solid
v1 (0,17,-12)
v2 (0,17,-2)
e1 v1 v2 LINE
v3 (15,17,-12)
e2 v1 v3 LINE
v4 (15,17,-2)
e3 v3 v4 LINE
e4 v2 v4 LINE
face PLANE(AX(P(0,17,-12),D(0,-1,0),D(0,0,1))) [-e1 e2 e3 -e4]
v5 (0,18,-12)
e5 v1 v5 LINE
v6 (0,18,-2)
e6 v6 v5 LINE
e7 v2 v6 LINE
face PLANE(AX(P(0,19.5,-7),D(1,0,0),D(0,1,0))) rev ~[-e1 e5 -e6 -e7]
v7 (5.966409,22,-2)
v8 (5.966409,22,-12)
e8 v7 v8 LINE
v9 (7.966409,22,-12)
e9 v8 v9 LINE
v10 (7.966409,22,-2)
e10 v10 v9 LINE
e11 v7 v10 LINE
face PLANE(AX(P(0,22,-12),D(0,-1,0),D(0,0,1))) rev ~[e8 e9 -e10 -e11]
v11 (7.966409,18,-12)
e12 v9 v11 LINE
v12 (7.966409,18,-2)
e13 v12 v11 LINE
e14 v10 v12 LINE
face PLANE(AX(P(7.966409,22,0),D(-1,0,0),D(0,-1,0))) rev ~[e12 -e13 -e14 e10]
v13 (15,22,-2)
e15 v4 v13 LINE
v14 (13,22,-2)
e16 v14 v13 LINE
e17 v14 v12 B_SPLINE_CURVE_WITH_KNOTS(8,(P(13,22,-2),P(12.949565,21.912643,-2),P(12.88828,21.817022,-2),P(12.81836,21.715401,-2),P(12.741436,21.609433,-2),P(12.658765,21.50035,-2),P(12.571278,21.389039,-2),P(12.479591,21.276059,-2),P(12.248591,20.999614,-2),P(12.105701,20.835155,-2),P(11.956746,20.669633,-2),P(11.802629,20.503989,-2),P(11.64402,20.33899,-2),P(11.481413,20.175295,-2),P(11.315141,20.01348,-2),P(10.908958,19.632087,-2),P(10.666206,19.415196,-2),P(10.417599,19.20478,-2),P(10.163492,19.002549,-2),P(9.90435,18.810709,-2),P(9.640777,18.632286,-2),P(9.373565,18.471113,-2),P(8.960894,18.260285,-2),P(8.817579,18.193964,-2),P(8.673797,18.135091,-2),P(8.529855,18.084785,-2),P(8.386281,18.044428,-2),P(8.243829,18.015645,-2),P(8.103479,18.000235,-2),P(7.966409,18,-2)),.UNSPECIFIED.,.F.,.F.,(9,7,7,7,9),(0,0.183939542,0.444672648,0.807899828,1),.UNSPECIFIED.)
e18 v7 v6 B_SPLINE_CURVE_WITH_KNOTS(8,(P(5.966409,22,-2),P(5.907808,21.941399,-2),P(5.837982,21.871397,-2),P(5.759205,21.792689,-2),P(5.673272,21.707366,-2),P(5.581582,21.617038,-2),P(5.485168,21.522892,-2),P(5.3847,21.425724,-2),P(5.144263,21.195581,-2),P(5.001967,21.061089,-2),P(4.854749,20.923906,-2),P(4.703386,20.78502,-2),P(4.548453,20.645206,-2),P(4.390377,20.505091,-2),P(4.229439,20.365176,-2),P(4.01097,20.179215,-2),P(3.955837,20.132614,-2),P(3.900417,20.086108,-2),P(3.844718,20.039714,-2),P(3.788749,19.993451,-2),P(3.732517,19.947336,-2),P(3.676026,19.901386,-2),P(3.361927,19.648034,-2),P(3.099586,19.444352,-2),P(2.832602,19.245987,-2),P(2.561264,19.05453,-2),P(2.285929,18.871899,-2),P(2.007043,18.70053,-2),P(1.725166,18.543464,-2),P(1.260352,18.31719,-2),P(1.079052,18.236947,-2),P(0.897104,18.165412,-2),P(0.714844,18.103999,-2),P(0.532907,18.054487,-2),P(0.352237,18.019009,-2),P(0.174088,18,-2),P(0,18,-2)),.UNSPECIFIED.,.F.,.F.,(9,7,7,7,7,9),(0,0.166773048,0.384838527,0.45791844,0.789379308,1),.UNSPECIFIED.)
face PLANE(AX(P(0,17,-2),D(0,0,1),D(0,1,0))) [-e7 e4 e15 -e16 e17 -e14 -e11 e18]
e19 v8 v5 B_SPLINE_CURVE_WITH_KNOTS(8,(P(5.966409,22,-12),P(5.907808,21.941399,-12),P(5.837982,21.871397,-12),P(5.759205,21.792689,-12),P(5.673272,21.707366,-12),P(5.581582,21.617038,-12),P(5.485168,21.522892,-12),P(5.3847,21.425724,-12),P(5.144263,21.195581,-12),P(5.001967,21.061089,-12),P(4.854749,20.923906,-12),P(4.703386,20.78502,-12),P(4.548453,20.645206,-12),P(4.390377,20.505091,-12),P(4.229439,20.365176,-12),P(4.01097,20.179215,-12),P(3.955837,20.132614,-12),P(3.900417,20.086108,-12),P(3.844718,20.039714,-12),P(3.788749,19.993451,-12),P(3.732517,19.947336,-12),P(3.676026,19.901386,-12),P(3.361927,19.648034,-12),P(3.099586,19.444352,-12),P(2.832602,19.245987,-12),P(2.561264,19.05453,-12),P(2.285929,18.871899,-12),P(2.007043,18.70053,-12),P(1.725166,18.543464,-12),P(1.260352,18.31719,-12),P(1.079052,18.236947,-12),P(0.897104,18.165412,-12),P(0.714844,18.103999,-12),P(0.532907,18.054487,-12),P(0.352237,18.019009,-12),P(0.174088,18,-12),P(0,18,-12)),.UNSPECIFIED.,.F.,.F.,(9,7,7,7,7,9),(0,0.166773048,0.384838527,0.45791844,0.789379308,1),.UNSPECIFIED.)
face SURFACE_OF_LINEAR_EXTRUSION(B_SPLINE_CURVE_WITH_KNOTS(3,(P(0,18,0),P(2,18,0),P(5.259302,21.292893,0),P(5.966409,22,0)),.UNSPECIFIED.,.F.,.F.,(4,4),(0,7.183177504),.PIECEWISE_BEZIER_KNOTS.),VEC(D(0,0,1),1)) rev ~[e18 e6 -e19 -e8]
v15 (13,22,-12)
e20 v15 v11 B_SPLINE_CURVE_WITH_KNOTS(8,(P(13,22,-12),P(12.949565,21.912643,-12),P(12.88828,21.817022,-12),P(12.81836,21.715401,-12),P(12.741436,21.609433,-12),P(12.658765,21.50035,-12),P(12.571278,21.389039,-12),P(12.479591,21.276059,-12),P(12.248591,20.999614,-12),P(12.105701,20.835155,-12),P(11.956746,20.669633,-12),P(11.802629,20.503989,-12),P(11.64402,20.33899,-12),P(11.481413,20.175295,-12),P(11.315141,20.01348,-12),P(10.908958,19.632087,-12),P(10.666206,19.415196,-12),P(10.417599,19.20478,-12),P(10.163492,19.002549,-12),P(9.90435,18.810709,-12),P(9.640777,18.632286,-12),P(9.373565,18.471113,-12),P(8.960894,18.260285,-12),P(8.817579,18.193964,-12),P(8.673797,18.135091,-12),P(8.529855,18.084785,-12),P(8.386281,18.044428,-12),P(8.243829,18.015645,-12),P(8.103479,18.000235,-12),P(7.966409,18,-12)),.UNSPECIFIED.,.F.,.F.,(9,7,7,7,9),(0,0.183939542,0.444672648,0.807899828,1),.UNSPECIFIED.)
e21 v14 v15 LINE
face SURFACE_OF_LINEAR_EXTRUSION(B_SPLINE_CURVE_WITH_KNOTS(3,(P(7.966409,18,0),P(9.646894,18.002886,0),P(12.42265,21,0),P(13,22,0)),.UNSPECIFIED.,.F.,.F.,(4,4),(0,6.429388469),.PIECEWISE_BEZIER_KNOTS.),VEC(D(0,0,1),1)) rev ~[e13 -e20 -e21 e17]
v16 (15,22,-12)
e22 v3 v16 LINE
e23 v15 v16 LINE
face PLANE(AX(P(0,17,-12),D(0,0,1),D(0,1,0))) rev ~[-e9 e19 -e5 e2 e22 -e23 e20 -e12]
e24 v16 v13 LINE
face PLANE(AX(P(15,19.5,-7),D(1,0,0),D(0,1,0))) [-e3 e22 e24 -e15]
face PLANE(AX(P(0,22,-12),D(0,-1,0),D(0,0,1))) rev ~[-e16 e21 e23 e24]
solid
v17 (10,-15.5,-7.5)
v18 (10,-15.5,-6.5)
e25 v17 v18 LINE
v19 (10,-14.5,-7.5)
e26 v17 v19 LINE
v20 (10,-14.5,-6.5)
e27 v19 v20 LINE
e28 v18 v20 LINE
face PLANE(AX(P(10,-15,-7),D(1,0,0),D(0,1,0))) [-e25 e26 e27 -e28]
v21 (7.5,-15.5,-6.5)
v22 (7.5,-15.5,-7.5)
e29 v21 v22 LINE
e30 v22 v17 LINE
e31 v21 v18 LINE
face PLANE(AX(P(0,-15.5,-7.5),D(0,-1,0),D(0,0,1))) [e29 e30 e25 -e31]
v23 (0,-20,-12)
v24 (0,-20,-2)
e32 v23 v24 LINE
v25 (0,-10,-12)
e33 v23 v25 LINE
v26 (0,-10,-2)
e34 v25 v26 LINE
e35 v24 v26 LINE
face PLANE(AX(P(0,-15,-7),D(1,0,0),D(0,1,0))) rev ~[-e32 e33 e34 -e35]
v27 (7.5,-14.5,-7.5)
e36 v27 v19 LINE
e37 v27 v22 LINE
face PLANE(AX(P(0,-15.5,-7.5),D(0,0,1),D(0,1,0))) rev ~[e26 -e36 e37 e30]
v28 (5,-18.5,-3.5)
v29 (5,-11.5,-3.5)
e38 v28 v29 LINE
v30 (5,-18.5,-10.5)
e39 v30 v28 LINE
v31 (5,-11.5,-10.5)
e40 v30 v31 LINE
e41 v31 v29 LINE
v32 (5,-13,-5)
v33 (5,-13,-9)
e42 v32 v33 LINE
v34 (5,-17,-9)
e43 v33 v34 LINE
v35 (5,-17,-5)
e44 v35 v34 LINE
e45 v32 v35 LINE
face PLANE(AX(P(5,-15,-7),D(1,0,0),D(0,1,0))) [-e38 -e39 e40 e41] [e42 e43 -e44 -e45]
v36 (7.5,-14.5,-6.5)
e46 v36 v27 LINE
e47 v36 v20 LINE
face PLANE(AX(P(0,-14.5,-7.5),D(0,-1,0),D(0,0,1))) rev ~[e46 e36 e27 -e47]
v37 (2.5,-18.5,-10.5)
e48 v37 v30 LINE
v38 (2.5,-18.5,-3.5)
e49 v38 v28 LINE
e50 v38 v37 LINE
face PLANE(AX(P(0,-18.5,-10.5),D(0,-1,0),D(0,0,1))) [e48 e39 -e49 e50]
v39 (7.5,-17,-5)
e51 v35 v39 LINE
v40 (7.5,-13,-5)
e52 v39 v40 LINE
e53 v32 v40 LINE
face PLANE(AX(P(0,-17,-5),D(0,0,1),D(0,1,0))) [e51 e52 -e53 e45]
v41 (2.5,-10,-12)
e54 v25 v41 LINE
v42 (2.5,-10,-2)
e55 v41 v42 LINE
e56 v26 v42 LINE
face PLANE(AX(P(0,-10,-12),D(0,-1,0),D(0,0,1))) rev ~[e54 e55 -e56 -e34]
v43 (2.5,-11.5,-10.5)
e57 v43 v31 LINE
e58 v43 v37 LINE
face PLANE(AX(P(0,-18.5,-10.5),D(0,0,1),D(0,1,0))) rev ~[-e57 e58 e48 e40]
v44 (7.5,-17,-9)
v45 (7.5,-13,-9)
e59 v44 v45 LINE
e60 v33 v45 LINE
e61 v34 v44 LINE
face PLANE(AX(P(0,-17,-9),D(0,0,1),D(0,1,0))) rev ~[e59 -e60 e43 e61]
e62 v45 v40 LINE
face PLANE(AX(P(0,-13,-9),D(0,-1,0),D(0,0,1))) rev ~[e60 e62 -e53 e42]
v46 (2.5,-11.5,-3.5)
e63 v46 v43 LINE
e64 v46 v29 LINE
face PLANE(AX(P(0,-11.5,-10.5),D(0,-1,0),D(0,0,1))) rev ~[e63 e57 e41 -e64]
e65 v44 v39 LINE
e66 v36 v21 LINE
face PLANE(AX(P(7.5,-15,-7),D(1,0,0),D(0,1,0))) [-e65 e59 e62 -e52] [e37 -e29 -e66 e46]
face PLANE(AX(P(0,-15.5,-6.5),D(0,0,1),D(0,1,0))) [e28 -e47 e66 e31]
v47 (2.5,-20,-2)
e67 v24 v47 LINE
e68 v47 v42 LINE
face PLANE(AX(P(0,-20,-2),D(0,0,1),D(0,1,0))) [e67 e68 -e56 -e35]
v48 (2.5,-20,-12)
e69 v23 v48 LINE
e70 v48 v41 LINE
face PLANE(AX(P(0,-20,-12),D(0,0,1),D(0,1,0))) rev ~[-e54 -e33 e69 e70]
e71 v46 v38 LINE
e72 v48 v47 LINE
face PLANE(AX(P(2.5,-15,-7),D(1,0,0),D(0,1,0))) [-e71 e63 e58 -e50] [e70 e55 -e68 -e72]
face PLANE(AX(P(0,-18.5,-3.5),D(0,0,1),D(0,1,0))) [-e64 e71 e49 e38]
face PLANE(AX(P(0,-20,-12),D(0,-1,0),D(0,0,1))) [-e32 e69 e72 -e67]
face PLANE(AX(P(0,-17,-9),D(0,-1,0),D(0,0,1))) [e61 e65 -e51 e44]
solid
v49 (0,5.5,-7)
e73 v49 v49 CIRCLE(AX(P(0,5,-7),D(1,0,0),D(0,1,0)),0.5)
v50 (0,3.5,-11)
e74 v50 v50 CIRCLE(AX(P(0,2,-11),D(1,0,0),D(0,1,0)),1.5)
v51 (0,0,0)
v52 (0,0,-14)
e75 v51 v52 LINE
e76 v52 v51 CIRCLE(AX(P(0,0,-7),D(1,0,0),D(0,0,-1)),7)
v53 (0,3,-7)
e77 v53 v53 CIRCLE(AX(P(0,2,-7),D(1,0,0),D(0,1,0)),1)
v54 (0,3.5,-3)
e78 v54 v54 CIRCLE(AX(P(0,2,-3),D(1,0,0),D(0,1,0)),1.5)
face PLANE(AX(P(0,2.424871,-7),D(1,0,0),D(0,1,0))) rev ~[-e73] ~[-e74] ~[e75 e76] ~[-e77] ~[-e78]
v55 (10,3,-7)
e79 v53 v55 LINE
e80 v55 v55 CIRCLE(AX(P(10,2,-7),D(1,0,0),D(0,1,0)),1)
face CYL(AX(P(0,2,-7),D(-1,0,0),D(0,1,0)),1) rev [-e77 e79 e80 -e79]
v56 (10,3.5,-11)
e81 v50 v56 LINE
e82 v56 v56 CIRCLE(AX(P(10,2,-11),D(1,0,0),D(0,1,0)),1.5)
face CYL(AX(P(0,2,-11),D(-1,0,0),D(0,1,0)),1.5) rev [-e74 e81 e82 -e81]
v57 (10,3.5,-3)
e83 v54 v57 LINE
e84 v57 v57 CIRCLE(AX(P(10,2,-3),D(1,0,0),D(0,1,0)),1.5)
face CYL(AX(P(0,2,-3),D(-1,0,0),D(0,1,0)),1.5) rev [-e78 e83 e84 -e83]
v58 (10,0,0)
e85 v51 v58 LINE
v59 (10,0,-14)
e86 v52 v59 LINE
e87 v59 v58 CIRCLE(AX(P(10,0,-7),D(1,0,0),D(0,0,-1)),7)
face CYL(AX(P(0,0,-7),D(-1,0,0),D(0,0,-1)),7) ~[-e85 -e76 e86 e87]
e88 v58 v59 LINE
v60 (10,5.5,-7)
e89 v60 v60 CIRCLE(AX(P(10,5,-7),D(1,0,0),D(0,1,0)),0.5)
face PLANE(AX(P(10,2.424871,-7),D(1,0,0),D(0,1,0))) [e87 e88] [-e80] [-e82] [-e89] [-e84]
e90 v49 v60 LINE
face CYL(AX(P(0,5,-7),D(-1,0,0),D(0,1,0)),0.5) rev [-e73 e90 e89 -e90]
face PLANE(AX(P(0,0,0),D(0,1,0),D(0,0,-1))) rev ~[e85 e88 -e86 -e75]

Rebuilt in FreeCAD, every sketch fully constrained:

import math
import FreeCAD as App
import Part
import Sketcher


def add_polygon(sketch, points):
    """Adds a closed chain of lines whose ends are joined by coincident constraints."""
    first, n = sketch.GeometryCount, len(points)
    for a, b in zip(points, points[1:] + points[:1]):
        sketch.addGeometry(Part.LineSegment(App.Vector(*a, 0), App.Vector(*b, 0)), False)
    for i in range(n):
        sketch.addConstraint(Sketcher.Constraint("Coincident", first + i, 2, first + (i + 1) % n, 1))

doc = App.newDocument("Part")
params = doc.addObject("Spreadsheet::Sheet", "Params")
for row, (alias, value) in enumerate([
    ("sketch1_width", "10 mm"),
    ("pad1_length", "2.5 mm"),
    ("sketch2_width", "7 mm"),
    ("pad2_length", "5 mm"),
    ("sketch3_width", "4 mm"),
    ("pad3_length", "7.5 mm"),
    ("sketch4_width", "1 mm"),
    ("pad4_length", "10 mm"),
    ("sketch5_diameter", "3 mm"),
    ("sketch5_diameter2", "2 mm"),
    ("sketch5_diameter3", "1 mm"),
    ("sketch5_radius", "7 mm"),
    ("pad5_length", "10 mm"),
    ("sketch6_width", "5 mm"),
    ("sketch6_height", "10 mm"),
    ("pad6_length", "15 mm"),
    ("pocket1_length", "25 mm"),
], start=1):
    params.set(f"A{row}", alias)
    params.set(f"B{row}", "=" + value)
    params.setAlias(f"B{row}", alias)

body = doc.addObject("PartDesign::Body", "Body")

# Sketch on YZ plane
sketch1 = body.newObject("Sketcher::SketchObject", "Sketch")
sketch1.AttachmentSupport = (doc.getObject("YZ_Plane"), [""])
sketch1.MapMode = "FlatFace"
add_polygon(sketch1, [(-20, -2), (-20, -12), (-10, -12), (-10, -2)])  # lines 0-3
sketch1.addConstraint(Sketcher.Constraint("Vertical", 0))
sketch1.addConstraint(Sketcher.Constraint("Horizontal", 1))
sketch1.addConstraint(Sketcher.Constraint("Vertical", 2))
sketch1.addConstraint(Sketcher.Constraint("Horizontal", 3))
sketch1.addConstraint(Sketcher.Constraint("Equal", 3, 0))
sketch1.addConstraint(Sketcher.Constraint("DistanceX", 1, 1, 1, 2, 10.0))
sketch1.addConstraint(Sketcher.Constraint("DistanceX", 0, 2, -1, 1, 20.0))
sketch1.addConstraint(Sketcher.Constraint("DistanceY", 0, 2, -1, 1, 12.0))
sketch1.setExpression("Constraints[9]", "Params.sketch1_width")
pad1 = body.newObject("PartDesign::Pad", "Pad")
pad1.Profile = sketch1
pad1.setExpression("Length", "Params.pad1_length")

# Sketch on YZ plane
sketch2 = body.newObject("Sketcher::SketchObject", "Sketch001")
sketch2.AttachmentSupport = (doc.getObject("YZ_Plane"), [""])
sketch2.MapMode = "FlatFace"
add_polygon(sketch2, [(-18, -4), (-18, -10), (-12, -10), (-12, -4)])  # lines 0-3
sketch2.addConstraint(Sketcher.Constraint("Vertical", 0))
sketch2.addConstraint(Sketcher.Constraint("Horizontal", 1))
sketch2.addConstraint(Sketcher.Constraint("Vertical", 2))
sketch2.addConstraint(Sketcher.Constraint("Horizontal", 3))
sketch2.addConstraint(Sketcher.Constraint("Equal", 3, 0))
sketch2.addConstraint(Sketcher.Constraint("DistanceX", 1, 1, 1, 2, 7.0))
sketch2.addConstraint(Sketcher.Constraint("DistanceX", 0, 2, -1, 1, 18.5))
sketch2.addConstraint(Sketcher.Constraint("DistanceY", 0, 2, -1, 1, 10.5))
sketch2.setExpression("Constraints[9]", "Params.sketch2_width")
pad2 = body.newObject("PartDesign::Pad", "Pad001")
pad2.Profile = sketch2
pad2.setExpression("Length", "Params.pad2_length")

# Sketch on YZ plane
sketch3 = body.newObject("Sketcher::SketchObject", "Sketch002")
sketch3.AttachmentSupport = (doc.getObject("YZ_Plane"), [""])
sketch3.MapMode = "FlatFace"
add_polygon(sketch3, [(-17, -5), (-17, -9), (-13, -9), (-13, -5)])  # lines 0-3
sketch3.addConstraint(Sketcher.Constraint("Vertical", 0))
sketch3.addConstraint(Sketcher.Constraint("Horizontal", 1))
sketch3.addConstraint(Sketcher.Constraint("Vertical", 2))
sketch3.addConstraint(Sketcher.Constraint("Horizontal", 3))
sketch3.addConstraint(Sketcher.Constraint("Equal", 3, 0))
sketch3.addConstraint(Sketcher.Constraint("DistanceX", 1, 1, 1, 2, 4.0))
sketch3.addConstraint(Sketcher.Constraint("DistanceX", 0, 2, -1, 1, 17.0))
sketch3.addConstraint(Sketcher.Constraint("DistanceY", 0, 2, -1, 1, 9.0))
sketch3.setExpression("Constraints[9]", "Params.sketch3_width")
pad3 = body.newObject("PartDesign::Pad", "Pad002")
pad3.Profile = sketch3
pad3.setExpression("Length", "Params.pad3_length")

# Sketch on YZ plane
sketch4 = body.newObject("Sketcher::SketchObject", "Sketch003")
sketch4.AttachmentSupport = (doc.getObject("YZ_Plane"), [""])
sketch4.MapMode = "FlatFace"
add_polygon(sketch4, [(-15.5, -6.5), (-15.5, -7.5), (-14.5, -7.5), (-14.5, -6.5)])  # lines 0-3
sketch4.addConstraint(Sketcher.Constraint("Vertical", 0))
sketch4.addConstraint(Sketcher.Constraint("Horizontal", 1))
sketch4.addConstraint(Sketcher.Constraint("Vertical", 2))
sketch4.addConstraint(Sketcher.Constraint("Horizontal", 3))
sketch4.addConstraint(Sketcher.Constraint("Equal", 3, 0))
sketch4.addConstraint(Sketcher.Constraint("DistanceX", 1, 1, 1, 2, 1.0))
sketch4.addConstraint(Sketcher.Constraint("DistanceX", 0, 2, -1, 1, 15.5))
sketch4.addConstraint(Sketcher.Constraint("DistanceY", 0, 2, -1, 1, 7.5))
sketch4.setExpression("Constraints[9]", "Params.sketch4_width")
pad4 = body.newObject("PartDesign::Pad", "Pad003")
pad4.Profile = sketch4
pad4.setExpression("Length", "Params.pad4_length")
body2 = doc.addObject("PartDesign::Body", "Body001")

# Sketch on YZ plane
sketch5 = body2.newObject("Sketcher::SketchObject", "Sketch004")
sketch5.AttachmentSupport = (doc.getObject("YZ_Plane001"), [""])
sketch5.MapMode = "FlatFace"
sketch5.addGeometry(Part.ArcOfCircle(Part.Circle(App.Vector(0, -7, 0), App.Vector(0, 0, 1), 7), math.radians(-90), math.radians(90)), False)
sketch5.addGeometry(Part.LineSegment(App.Vector(0, 0, 0), App.Vector(0, -14, 0)), False)
sketch5.addGeometry(Part.Circle(App.Vector(2, -11, 0), App.Vector(0, 0, 1), 1.5), False)
sketch5.addGeometry(Part.Circle(App.Vector(2, -7, 0), App.Vector(0, 0, 1), 1), False)
sketch5.addGeometry(Part.Circle(App.Vector(2, -3, 0), App.Vector(0, 0, 1), 1.5), False)
sketch5.addGeometry(Part.Circle(App.Vector(5, -7, 0), App.Vector(0, 0, 1), 0.5), False)
sketch5.addConstraint(Sketcher.Constraint("Coincident", 0, 1, 1, 2))
sketch5.addConstraint(Sketcher.Constraint("Coincident", 1, 1, 0, 2))
sketch5.addConstraint(Sketcher.Constraint("Vertical", 1))
sketch5.addConstraint(Sketcher.Constraint("Coincident", 1, 1, -1, 1))
sketch5.addConstraint(Sketcher.Constraint("Equal", 2, 4))
sketch5.addConstraint(Sketcher.Constraint("PointOnObject", 0, 3, -2))
sketch5.addConstraint(Sketcher.Constraint("Horizontal", 0, 3, 3, 3))
sketch5.addConstraint(Sketcher.Constraint("Horizontal", 3, 3, 5, 3))
sketch5.addConstraint(Sketcher.Constraint("Vertical", 2, 3, 3, 3))
sketch5.addConstraint(Sketcher.Constraint("Vertical", 3, 3, 4, 3))
sketch5.addConstraint(Sketcher.Constraint("Diameter", 2, 3.0))
sketch5.addConstraint(Sketcher.Constraint("Diameter", 3, 2.0))
sketch5.addConstraint(Sketcher.Constraint("Diameter", 5, 1.0))
sketch5.addConstraint(Sketcher.Constraint("Radius", 0, 7.0))
sketch5.addConstraint(Sketcher.Constraint("DistanceX", -1, 1, 2, 3, 2.0))
sketch5.addConstraint(Sketcher.Constraint("DistanceY", 2, 3, -1, 1, 11.0))
sketch5.addConstraint(Sketcher.Constraint("DistanceY", 4, 3, -1, 1, 3.0))
sketch5.addConstraint(Sketcher.Constraint("DistanceX", -1, 1, 5, 3, 5.0))
sketch5.setExpression("Constraints[10]", "Params.sketch5_diameter")
sketch5.setExpression("Constraints[11]", "Params.sketch5_diameter2")
sketch5.setExpression("Constraints[12]", "Params.sketch5_diameter3")
sketch5.setExpression("Constraints[13]", "Params.sketch5_radius")
pad5 = body2.newObject("PartDesign::Pad", "Pad004")
pad5.Profile = sketch5
pad5.setExpression("Length", "Params.pad5_length")
body3 = doc.addObject("PartDesign::Body", "Body002")

# Sketch on YZ plane
sketch6 = body3.newObject("Sketcher::SketchObject", "Sketch005")
sketch6.AttachmentSupport = (doc.getObject("YZ_Plane002"), [""])
sketch6.MapMode = "FlatFace"
add_polygon(sketch6, [(17, -2), (17, -12), (22, -12), (22, -2)])  # lines 0-3
sketch6.addConstraint(Sketcher.Constraint("Vertical", 0))
sketch6.addConstraint(Sketcher.Constraint("Horizontal", 1))
sketch6.addConstraint(Sketcher.Constraint("Vertical", 2))
sketch6.addConstraint(Sketcher.Constraint("Horizontal", 3))
sketch6.addConstraint(Sketcher.Constraint("DistanceX", 1, 1, 1, 2, 5.0))
sketch6.addConstraint(Sketcher.Constraint("DistanceY", 0, 2, 0, 1, 10.0))
sketch6.addConstraint(Sketcher.Constraint("DistanceX", -1, 1, 0, 2, 17.0))
sketch6.addConstraint(Sketcher.Constraint("DistanceY", 0, 2, -1, 1, 12.0))
sketch6.setExpression("Constraints[8]", "Params.sketch6_width")
sketch6.setExpression("Constraints[9]", "Params.sketch6_height")
pad6 = body3.newObject("PartDesign::Pad", "Pad005")
pad6.Profile = sketch6
pad6.setExpression("Length", "Params.pad6_length")

# Sketch on XY plane
sketch7 = body3.newObject("Sketcher::SketchObject", "Sketch006")
sketch7.AttachmentSupport = (doc.getObject("XY_Plane002"), [""])
sketch7.MapMode = "FlatFace"
sketch7.addGeometry(Part.LineSegment(App.Vector(13, 22, 0), App.Vector(7.966409, 22, 0)), False)
sketch7.addGeometry(Part.LineSegment(App.Vector(7.966409, 22, 0), App.Vector(7.966409, 18, 0)), False)
sketch7.addGeometry(Part.BSplineCurve([App.Vector(7.966409, 18, 0), App.Vector(9.646894, 18.002886, 0), App.Vector(12.42265, 21, 0), App.Vector(13, 22, 0)], [4, 4], [0, 6.429388469], False, 3, [1, 1, 1, 1], False), False)
sketch7.addGeometry(Part.LineSegment(App.Vector(0, 22, 0), App.Vector(0, 18, 0)), False)
sketch7.addGeometry(Part.BSplineCurve([App.Vector(0, 18, 0), App.Vector(2, 18, 0), App.Vector(5.259302, 21.292893, 0), App.Vector(5.966409, 22, 0)], [4, 4], [0, 7.183177504], False, 3, [1, 1, 1, 1], False), False)
sketch7.addGeometry(Part.LineSegment(App.Vector(5.966409, 22, 0), App.Vector(0, 22, 0)), False)
sketch7.addConstraint(Sketcher.Constraint("Block", 2))
sketch7.addConstraint(Sketcher.Constraint("Block", 4))
sketch7.addConstraint(Sketcher.Constraint("Coincident", 0, 2, 1, 1))
sketch7.addConstraint(Sketcher.Constraint("Coincident", 1, 2, 2, 1))
sketch7.addConstraint(Sketcher.Constraint("Coincident", 2, 2, 0, 1))
sketch7.addConstraint(Sketcher.Constraint("Coincident", 3, 2, 4, 1))
sketch7.addConstraint(Sketcher.Constraint("Coincident", 4, 2, 5, 1))
sketch7.addConstraint(Sketcher.Constraint("Coincident", 5, 2, 3, 1))
sketch7.addConstraint(Sketcher.Constraint("Horizontal", 0))
sketch7.addConstraint(Sketcher.Constraint("Vertical", 1))
sketch7.addConstraint(Sketcher.Constraint("Vertical", 3))
sketch7.addConstraint(Sketcher.Constraint("Horizontal", 5))
pocket1 = body3.newObject("PartDesign::Pocket", "Pocket")
pocket1.Profile = sketch7
pocket1.setExpression("Length", "Params.pocket1_length")

doc.recompute()
